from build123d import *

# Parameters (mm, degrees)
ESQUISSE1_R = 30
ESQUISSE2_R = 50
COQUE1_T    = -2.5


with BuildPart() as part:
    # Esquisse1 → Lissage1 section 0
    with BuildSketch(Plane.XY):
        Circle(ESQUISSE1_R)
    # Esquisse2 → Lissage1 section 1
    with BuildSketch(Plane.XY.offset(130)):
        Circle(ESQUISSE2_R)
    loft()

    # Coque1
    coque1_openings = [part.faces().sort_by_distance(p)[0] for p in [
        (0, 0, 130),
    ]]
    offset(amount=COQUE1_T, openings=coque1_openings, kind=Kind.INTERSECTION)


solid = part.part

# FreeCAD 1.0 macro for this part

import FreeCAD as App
import Part
import Sketcher

V = App.Vector


def faces_at(feature, points):
    """Names of the faces that lie closest to the given points."""
    faces = feature.Shape.Faces
    near = lambda p: min(range(len(faces)), key=lambda i: faces[i].distToShape(Part.Vertex(*p))[0])
    return sorted({f"Face{near(p) + 1}" for p in points})

doc = App.newDocument("Part")
body = doc.addObject("PartDesign::Body", "Body")

sketch1 = body.newObject("Sketcher::SketchObject", "Sketch")
sketch1.AttachmentSupport = (doc.getObject("XY_Plane"), [""])
sketch1.MapMode = "FlatFace"
sketch1.addGeometry(Part.Circle(V(0, 0, 0), V(0, 0, 1), 30), False)
sketch1.addConstraint([
    Sketcher.Constraint("Coincident", 0, 3, -1, 1),
    Sketcher.Constraint("Diameter", 0, 60.0),
])

sketch2 = body.newObject("Sketcher::SketchObject", "Sketch001")
sketch2.AttachmentSupport = (doc.getObject("XY_Plane"), [""])
sketch2.MapMode = "FlatFace"
sketch2.AttachmentOffset = App.Placement(V(0, 0, 130), App.Rotation())
sketch2.addGeometry(Part.Circle(V(0, 0, 0), V(0, 0, 1), 50), False)
sketch2.addConstraint([
    Sketcher.Constraint("Coincident", 0, 3, -1, 1),
    Sketcher.Constraint("Diameter", 0, 100.0),
])

additiveloft = body.newObject("PartDesign::AdditiveLoft", "AdditiveLoft")
additiveloft.Profile = sketch1
additiveloft.Sections = [sketch2]
doc.recompute()

thickness = body.newObject("PartDesign::Thickness", "Thickness")
thickness.Base = (additiveloft, faces_at(additiveloft, [(0, 0, 130)]))
thickness.Value = 2.5
thickness.Reversed = True
thickness.Join = "Intersection"

doc.recompute()
